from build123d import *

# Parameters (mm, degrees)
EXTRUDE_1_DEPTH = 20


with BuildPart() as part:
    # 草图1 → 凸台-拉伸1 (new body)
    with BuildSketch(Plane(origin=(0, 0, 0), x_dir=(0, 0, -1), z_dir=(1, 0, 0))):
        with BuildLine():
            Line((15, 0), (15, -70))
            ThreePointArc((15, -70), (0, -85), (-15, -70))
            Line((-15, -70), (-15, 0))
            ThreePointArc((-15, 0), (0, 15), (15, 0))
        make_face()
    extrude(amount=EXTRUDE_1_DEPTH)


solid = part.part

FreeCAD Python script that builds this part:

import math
import FreeCAD as App
import Part
import Sketcher
from FreeCAD import Vector
Q = App.Units.Quantity

doc = App.newDocument("Part")
body = doc.addObject("PartDesign::Body", "Body")

# Sketch on YZ plane
sketch1 = body.newObject("Sketcher::SketchObject", "Sketch")
sketch1.AttachmentSupport = (doc.getObject("YZ_Plane"), [""])
sketch1.MapMode = "FlatFace"
sketch1.addGeometry(Part.LineSegment(Vector(-70, -15, 0), Vector(0, -15, 0)), False)
sketch1.addGeometry(Part.ArcOfCircle(Part.Circle(Vector(0, 0, 0), Vector(0, 0, 1), 15), math.radians(-90), math.radians(90)), False)
sketch1.addGeometry(Part.LineSegment(Vector(0, 15, 0), Vector(-70, 15, 0)), False)
sketch1.addGeometry(Part.ArcOfCircle(Part.Circle(Vector(-70, 0, 0), Vector(0, 0, 1), 15), math.radians(90), math.radians(270)), False)
sketch1.addConstraint(Sketcher.Constraint("Tangent", 0, 2, 1, 1))
sketch1.addConstraint(Sketcher.Constraint("Tangent", 1, 2, 2, 1))
sketch1.addConstraint(Sketcher.Constraint("Tangent", 2, 2, 3, 1))
sketch1.addConstraint(Sketcher.Constraint("Tangent", 3, 2, 0, 1))
sketch1.addConstraint(Sketcher.Constraint("Horizontal", 0))
sketch1.addConstraint(Sketcher.Constraint("Horizontal", 2))
sketch1.addConstraint(Sketcher.Constraint("Coincident", 1, 3, -1, 1))
sketch1.addConstraint(Sketcher.Constraint("Radius", 1, Q("15 mm")))
sketch1.addConstraint(Sketcher.Constraint("DistanceX", 0, 1, 0, 2, Q("70 mm")))
pad1 = body.newObject("PartDesign::Pad", "Pad")
pad1.Profile = sketch1
pad1.Length = 20

doc.recompute()
